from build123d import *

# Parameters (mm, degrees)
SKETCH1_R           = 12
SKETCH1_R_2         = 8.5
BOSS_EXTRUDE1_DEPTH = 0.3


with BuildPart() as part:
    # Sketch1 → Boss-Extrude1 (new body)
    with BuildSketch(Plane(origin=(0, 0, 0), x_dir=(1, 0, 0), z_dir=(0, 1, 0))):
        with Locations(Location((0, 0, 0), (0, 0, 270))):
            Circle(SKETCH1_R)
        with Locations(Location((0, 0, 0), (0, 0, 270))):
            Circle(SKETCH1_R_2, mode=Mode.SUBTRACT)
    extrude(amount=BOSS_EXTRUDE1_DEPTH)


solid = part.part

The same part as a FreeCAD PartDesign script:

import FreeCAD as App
import Part
import Sketcher
from FreeCAD import Vector
Q = App.Units.Quantity

doc = App.newDocument("Part")
params = doc.addObject("Spreadsheet::Sheet", "Params")
for row, (alias, value) in enumerate([
    ("sketch1_diameter", "24 mm"),
    ("sketch1_diameter2", "17 mm"),
    ("pad1_length", "0.3 mm"),
], start=1):
    params.set(f"A{row}", alias)
    params.set(f"B{row}", "=" + value)
    params.setAlias(f"B{row}", alias)

body = doc.addObject("PartDesign::Body", "Body")

sketch1 = doc.addObject("Sketcher::SketchObject", "Sketch")
body.addObject(sketch1)
sketch1.AttachmentSupport = (doc.XZ_Plane, [""])
sketch1.MapMode = "FlatFace"
sketch1.addGeometry([
    Part.Circle(Vector(0, 0, 0), Vector(0, 0, 1), 12),
    Part.Circle(Vector(0, 0, 0), Vector(0, 0, 1), 8),
], False)
sketch1.addConstraint([
    Sketcher.Constraint("Coincident", 0, 3, -1, 1),
    Sketcher.Constraint("Coincident", 1, 3, -1, 1),
    Sketcher.Constraint("Diameter", 0, Q("24 mm")),
    Sketcher.Constraint("Diameter", 1, Q("17 mm")),
])
sketch1.setExpression("Constraints[2]", "Params.sketch1_diameter")
sketch1.setExpression("Constraints[3]", "Params.sketch1_diameter2")
pad1 = doc.addObject("PartDesign::Pad", "Pad")
body.addObject(pad1)
pad1.Profile = sketch1
pad1.setExpression("Length", "Params.pad1_length")
pad1.Reversed = True

doc.recompute()
